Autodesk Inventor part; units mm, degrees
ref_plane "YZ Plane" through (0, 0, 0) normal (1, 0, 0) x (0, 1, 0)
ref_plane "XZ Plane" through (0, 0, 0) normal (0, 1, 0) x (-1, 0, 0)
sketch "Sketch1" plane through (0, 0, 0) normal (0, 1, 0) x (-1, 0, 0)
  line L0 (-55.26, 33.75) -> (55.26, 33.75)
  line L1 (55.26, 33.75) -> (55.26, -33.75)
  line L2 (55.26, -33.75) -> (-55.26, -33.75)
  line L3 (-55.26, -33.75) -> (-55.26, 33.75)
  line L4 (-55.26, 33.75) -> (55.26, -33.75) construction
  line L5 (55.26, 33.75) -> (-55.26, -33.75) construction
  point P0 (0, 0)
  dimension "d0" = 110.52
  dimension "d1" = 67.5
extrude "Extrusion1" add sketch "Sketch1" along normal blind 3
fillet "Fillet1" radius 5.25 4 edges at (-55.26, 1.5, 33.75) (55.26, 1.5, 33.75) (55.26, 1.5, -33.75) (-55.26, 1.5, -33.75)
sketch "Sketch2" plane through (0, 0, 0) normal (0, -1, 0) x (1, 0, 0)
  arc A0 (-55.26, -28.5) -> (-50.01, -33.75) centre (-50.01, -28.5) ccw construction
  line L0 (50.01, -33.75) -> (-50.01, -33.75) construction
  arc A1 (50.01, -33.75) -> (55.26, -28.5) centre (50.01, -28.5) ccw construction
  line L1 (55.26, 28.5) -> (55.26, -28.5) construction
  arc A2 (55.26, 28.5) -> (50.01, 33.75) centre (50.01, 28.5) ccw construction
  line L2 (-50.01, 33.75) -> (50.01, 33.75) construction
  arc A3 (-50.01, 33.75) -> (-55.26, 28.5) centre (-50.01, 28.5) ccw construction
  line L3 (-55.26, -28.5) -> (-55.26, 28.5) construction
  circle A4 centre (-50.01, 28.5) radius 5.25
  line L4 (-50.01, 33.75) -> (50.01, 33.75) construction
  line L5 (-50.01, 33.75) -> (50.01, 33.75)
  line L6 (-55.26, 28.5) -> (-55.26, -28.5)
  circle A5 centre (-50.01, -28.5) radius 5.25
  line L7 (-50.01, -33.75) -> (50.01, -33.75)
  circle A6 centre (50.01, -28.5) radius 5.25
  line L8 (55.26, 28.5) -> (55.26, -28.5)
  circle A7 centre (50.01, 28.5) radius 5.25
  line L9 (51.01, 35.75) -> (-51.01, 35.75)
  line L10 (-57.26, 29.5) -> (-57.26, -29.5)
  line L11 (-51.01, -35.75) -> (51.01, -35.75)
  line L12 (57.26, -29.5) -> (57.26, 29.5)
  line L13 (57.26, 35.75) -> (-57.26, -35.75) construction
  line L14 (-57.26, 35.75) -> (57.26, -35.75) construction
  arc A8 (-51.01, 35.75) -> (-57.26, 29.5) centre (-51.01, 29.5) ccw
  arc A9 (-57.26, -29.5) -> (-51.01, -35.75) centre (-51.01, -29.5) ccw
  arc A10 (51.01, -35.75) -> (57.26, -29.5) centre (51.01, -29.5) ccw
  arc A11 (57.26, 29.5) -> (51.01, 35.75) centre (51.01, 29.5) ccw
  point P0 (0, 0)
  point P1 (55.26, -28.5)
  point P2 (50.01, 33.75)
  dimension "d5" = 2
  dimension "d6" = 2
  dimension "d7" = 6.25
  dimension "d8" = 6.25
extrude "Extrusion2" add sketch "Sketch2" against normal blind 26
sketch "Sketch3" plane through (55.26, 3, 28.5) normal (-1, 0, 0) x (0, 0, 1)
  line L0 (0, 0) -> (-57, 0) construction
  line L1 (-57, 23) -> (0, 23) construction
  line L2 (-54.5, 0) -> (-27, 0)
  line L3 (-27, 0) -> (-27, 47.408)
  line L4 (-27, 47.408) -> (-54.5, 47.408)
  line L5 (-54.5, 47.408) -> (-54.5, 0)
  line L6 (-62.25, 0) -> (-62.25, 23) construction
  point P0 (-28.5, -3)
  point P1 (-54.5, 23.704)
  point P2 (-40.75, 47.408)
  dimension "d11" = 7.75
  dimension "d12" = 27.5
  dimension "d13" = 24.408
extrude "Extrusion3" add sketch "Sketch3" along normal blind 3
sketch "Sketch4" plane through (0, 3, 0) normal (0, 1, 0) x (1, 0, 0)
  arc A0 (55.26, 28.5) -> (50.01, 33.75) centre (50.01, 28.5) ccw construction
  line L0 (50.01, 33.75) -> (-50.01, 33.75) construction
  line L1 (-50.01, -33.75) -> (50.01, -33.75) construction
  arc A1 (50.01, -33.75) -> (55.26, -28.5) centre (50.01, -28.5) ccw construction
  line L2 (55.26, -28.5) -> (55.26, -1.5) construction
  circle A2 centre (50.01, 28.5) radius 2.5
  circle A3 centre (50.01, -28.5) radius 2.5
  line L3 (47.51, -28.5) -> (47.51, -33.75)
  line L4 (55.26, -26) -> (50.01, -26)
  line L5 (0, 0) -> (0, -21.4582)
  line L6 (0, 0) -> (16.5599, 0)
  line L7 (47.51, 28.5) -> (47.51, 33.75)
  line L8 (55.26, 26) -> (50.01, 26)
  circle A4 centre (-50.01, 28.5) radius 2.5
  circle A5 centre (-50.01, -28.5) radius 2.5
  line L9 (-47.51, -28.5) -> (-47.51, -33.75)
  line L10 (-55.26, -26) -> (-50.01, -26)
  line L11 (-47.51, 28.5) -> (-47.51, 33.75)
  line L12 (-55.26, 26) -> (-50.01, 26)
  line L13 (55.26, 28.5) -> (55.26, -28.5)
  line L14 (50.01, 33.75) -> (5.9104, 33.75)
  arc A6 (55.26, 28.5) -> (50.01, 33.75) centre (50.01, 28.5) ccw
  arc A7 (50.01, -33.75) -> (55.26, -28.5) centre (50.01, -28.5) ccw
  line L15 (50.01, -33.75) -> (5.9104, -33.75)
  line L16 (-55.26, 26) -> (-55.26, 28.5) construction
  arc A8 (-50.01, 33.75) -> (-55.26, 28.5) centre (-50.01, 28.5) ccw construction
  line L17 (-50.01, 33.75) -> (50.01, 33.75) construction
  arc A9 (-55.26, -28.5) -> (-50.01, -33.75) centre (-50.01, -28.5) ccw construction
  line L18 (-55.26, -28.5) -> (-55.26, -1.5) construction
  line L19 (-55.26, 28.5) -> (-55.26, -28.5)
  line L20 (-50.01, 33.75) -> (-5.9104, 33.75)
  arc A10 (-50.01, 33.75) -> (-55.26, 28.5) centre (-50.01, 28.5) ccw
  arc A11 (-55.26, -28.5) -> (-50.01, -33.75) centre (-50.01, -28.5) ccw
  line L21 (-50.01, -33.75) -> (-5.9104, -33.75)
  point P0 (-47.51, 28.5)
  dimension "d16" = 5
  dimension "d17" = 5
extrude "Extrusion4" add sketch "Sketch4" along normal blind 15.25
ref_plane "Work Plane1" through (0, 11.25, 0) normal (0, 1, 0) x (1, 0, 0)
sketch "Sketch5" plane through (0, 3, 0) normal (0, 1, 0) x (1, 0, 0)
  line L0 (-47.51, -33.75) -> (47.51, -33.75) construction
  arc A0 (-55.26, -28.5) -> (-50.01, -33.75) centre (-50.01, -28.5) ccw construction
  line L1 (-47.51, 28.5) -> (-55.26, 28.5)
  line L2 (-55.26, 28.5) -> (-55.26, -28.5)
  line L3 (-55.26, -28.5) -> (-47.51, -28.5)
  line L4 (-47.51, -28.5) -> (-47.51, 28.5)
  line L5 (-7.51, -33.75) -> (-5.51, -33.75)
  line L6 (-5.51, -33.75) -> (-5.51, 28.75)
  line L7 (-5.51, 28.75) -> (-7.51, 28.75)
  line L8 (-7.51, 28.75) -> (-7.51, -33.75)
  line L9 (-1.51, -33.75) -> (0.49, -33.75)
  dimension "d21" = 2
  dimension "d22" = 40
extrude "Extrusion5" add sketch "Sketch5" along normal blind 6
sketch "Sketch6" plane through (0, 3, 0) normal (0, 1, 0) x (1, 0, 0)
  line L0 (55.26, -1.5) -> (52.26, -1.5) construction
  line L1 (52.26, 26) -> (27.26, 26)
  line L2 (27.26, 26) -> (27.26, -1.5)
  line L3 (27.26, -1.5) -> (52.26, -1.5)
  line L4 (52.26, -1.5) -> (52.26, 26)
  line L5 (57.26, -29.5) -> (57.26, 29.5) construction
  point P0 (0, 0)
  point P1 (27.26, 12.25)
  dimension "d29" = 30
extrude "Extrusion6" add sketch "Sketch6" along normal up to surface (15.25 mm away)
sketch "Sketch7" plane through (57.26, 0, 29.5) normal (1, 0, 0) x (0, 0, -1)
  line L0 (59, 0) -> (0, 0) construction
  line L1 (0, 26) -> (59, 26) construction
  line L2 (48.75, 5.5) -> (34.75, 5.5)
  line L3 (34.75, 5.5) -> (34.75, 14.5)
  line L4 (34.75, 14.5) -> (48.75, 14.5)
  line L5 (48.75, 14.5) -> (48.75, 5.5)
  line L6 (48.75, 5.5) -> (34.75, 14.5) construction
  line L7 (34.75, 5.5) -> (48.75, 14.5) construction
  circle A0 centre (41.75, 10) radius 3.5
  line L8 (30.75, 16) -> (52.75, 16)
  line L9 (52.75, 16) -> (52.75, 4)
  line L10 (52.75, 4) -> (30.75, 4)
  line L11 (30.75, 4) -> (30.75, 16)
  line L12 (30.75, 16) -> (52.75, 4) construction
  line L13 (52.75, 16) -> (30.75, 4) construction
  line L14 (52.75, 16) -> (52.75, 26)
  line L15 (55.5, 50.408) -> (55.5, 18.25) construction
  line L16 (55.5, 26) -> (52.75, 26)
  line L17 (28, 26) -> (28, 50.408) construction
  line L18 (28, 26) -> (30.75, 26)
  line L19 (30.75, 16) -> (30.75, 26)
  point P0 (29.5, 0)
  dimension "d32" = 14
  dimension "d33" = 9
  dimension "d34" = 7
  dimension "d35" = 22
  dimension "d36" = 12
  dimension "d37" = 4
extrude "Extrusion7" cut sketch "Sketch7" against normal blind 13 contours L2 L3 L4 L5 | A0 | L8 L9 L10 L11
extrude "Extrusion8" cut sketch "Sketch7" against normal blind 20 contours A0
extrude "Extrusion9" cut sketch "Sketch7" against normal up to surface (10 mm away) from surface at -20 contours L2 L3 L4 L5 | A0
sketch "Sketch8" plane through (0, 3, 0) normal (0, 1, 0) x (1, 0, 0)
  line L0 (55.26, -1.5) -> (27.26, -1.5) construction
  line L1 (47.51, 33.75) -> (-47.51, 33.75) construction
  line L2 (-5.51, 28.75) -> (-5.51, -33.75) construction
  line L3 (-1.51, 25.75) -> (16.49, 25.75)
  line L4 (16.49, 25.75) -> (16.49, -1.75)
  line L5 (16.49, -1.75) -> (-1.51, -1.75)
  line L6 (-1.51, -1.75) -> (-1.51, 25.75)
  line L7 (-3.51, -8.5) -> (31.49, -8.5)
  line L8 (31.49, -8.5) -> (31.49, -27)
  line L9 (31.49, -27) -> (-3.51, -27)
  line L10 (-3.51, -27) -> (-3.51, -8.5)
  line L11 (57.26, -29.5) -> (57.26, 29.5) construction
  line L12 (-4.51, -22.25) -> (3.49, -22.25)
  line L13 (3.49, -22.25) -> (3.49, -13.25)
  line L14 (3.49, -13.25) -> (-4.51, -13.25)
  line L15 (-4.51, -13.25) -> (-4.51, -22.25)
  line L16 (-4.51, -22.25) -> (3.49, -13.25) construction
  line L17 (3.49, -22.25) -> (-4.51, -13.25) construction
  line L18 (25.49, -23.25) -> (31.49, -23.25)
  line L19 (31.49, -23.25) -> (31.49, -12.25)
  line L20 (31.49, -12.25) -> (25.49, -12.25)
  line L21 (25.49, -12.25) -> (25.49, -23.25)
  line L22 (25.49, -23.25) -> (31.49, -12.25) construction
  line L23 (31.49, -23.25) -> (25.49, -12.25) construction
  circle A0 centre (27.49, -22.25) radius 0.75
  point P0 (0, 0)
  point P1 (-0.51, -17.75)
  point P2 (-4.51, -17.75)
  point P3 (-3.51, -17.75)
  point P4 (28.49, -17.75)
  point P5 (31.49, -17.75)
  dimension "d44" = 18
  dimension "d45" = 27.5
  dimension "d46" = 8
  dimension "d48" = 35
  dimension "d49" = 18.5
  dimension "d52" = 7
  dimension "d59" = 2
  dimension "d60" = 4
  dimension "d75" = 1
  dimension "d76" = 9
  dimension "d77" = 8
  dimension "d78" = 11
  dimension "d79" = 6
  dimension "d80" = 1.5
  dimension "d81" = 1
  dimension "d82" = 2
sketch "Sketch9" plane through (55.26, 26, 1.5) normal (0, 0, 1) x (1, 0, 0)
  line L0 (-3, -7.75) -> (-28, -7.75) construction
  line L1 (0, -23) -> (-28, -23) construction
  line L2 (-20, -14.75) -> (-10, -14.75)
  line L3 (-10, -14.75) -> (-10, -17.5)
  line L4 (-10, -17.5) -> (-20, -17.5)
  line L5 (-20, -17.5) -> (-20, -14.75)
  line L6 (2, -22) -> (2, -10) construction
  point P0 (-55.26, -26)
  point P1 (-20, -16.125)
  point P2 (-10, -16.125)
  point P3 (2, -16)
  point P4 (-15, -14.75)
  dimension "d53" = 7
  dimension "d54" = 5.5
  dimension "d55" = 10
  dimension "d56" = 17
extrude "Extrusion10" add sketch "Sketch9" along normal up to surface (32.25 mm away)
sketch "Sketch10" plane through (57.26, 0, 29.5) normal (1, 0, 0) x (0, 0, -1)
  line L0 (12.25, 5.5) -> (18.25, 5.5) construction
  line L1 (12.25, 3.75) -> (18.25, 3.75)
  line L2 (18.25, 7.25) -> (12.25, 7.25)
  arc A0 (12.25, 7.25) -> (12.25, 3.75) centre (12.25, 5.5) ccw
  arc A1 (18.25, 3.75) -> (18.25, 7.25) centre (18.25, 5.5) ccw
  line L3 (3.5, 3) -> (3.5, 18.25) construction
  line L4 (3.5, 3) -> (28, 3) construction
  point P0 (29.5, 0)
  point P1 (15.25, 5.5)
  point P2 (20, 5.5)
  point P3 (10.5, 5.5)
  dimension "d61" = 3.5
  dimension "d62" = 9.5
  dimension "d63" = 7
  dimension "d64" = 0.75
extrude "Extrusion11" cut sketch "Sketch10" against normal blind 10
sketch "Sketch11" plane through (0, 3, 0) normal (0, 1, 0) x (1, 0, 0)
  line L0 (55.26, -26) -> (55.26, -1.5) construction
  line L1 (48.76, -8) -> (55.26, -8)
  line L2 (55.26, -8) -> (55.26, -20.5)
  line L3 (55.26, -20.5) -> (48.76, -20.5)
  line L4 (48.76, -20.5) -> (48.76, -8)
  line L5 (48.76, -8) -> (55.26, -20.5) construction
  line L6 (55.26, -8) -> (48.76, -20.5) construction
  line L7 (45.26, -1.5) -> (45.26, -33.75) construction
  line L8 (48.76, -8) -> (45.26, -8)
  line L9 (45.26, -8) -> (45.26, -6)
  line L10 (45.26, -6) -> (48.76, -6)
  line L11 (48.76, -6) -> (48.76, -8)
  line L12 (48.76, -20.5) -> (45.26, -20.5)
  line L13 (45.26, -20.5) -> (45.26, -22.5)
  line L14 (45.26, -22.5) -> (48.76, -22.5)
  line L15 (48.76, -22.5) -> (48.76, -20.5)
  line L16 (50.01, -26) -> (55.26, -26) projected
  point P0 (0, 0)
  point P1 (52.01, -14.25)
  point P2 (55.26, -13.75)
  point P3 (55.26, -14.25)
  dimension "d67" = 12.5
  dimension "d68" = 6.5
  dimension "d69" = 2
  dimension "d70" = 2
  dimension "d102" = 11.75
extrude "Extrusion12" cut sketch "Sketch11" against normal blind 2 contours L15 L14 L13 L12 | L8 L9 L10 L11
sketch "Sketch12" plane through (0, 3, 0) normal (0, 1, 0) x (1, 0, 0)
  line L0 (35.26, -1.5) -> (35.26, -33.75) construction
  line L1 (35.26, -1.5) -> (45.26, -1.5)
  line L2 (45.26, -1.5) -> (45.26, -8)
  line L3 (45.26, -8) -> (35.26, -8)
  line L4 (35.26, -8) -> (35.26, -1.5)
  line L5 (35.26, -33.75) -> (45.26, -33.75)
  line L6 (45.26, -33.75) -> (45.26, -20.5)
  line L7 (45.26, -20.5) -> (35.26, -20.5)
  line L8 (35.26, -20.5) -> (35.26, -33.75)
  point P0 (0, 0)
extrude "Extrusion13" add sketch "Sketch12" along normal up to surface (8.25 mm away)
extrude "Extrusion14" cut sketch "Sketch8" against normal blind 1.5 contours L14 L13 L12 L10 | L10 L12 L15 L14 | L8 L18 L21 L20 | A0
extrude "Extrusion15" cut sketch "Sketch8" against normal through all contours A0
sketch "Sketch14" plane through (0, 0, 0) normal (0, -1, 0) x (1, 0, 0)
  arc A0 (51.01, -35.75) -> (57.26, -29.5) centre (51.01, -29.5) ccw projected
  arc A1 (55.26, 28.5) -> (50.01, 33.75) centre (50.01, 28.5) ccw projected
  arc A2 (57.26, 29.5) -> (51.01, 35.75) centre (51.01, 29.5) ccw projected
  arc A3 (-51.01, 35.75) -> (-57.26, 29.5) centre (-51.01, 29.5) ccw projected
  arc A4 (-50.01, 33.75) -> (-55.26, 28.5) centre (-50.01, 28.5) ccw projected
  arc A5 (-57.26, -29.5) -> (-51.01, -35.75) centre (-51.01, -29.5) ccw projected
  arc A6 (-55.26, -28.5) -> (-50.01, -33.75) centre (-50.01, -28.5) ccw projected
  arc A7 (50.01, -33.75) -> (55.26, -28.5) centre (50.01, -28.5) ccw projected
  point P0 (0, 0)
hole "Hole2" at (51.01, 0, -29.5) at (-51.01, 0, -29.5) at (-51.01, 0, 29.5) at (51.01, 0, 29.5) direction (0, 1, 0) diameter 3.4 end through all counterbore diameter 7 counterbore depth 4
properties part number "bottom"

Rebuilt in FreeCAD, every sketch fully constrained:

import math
import FreeCAD as App
import Part
import Sketcher

V = App.Vector


def edges_at(feature, points):
    """Names of the edges that pass closest to the given points."""
    edges = feature.Shape.Edges
    near = lambda p: min(range(len(edges)), key=lambda i: edges[i].distToShape(Part.Vertex(*p))[0])
    return sorted({f"Edge{near(p) + 1}" for p in points})

doc = App.newDocument("Part")
body = doc.addObject("PartDesign::Body", "Body")

# Sketch on XZ plane
sketch1 = body.newObject("Sketcher::SketchObject", "Sketch")
sketch1.AttachmentSupport = (doc.getObject("XZ_Plane"), [""])
sketch1.MapMode = "FlatFace"
sketch1.addGeometry([
    Part.LineSegment(V(-55.26, 33.75, 0), V(55.26, 33.75, 0)),
    Part.LineSegment(V(55.26, 33.75, 0), V(55.26, -33.75, 0)),
    Part.LineSegment(V(55.26, -33.75, 0), V(-55.26, -33.75, 0)),
    Part.LineSegment(V(-55.26, -33.75, 0), V(-55.26, 33.75, 0)),
], False)
sketch1.addConstraint([
    Sketcher.Constraint("Coincident", 0, 2, 1, 1),
    Sketcher.Constraint("Coincident", 1, 2, 2, 1),
    Sketcher.Constraint("Coincident", 2, 2, 3, 1),
    Sketcher.Constraint("Coincident", 3, 2, 0, 1),
    Sketcher.Constraint("Horizontal", 0),
    Sketcher.Constraint("Vertical", 1),
    Sketcher.Constraint("Horizontal", 2),
    Sketcher.Constraint("Vertical", 3),
    Sketcher.Constraint("Symmetric", 0, 2, 2, 2, -1, 1),
    Sketcher.Constraint("DistanceY", 1, 2, 1, 1, 67.5),
    Sketcher.Constraint("DistanceX", 0, 1, 0, 2, 110.52),
])
pad1 = body.newObject("PartDesign::Pad", "Pad")
pad1.Profile = sketch1
pad1.Length = 3
pad1.Reversed = True
doc.recompute()

fillet = body.newObject("PartDesign::Fillet", "Fillet")
fillet.Base = (pad1, edges_at(pad1, [
    (-55.26, 1.5, 33.75),
    (55.26, 1.5, 33.75),
    (55.26, 1.5, -33.75),
    (-55.26, 1.5, -33.75),
]))
fillet.Radius = 5.25

# Sketch on XZ plane
sketch2 = body.newObject("Sketcher::SketchObject", "Sketch001")
sketch2.AttachmentSupport = (doc.getObject("XZ_Plane"), [""])
sketch2.MapMode = "FlatFace"
sketch2.addGeometry([
    Part.ArcOfCircle(Part.Circle(V(51.01, 29.5, 0), V(0, 0, 1), 6.25), math.radians(0), math.radians(90)),  # 0
    Part.LineSegment(V(51.01, 35.75, 0), V(-51.01, 35.75, 0)),  # 1
    Part.ArcOfCircle(Part.Circle(V(-51.01, 29.5, 0), V(0, 0, 1), 6.25), math.radians(90), math.radians(180)),  # 2
    Part.LineSegment(V(-57.26, 29.5, 0), V(-57.26, -29.5, 0)),  # 3
    Part.ArcOfCircle(Part.Circle(V(-51.01, -29.5, 0), V(0, 0, 1), 6.25), math.radians(180), math.radians(270)),  # 4
    Part.LineSegment(V(-51.01, -35.75, 0), V(51.01, -35.75, 0)),  # 5
    Part.ArcOfCircle(Part.Circle(V(51.01, -29.5, 0), V(0, 0, 1), 6.25), math.radians(-90), math.radians(0)),  # 6
    Part.LineSegment(V(57.26, -29.5, 0), V(57.26, 29.5, 0)),  # 7
    Part.ArcOfCircle(Part.Circle(V(-50.01, 28.5, 0), V(0, 0, 1), 5.25), math.radians(90), math.radians(180)),  # 8
    Part.LineSegment(V(-50.01, 33.75, 0), V(50.01, 33.75, 0)),  # 9
    Part.ArcOfCircle(Part.Circle(V(50.01, 28.5, 0), V(0, 0, 1), 5.25), math.radians(0), math.radians(90)),  # 10
    Part.LineSegment(V(55.26, 28.5, 0), V(55.26, -28.5, 0)),  # 11
    Part.ArcOfCircle(Part.Circle(V(50.01, -28.5, 0), V(0, 0, 1), 5.25), math.radians(-90), math.radians(0)),  # 12
    Part.LineSegment(V(50.01, -33.75, 0), V(-50.01, -33.75, 0)),  # 13
    Part.ArcOfCircle(Part.Circle(V(-50.01, -28.5, 0), V(0, 0, 1), 5.25), math.radians(180), math.radians(270)),  # 14
    Part.LineSegment(V(-55.26, -28.5, 0), V(-55.26, 28.5, 0)),  # 15
], False)
sketch2.addConstraint([
    Sketcher.Constraint("Tangent", 0, 2, 1, 1),
    Sketcher.Constraint("Tangent", 1, 2, 2, 1),
    Sketcher.Constraint("Tangent", 2, 2, 3, 1),
    Sketcher.Constraint("Tangent", 3, 2, 4, 1),
    Sketcher.Constraint("Tangent", 4, 2, 5, 1),
    Sketcher.Constraint("Tangent", 5, 2, 6, 1),
    Sketcher.Constraint("Tangent", 6, 2, 7, 1),
    Sketcher.Constraint("Tangent", 7, 2, 0, 1),
    Sketcher.Constraint("Tangent", 8, 1, 9, 1),
    Sketcher.Constraint("Tangent", 9, 2, 10, 2),
    Sketcher.Constraint("Tangent", 10, 1, 11, 1),
    Sketcher.Constraint("Tangent", 11, 2, 12, 2),
    Sketcher.Constraint("Tangent", 12, 1, 13, 1),
    Sketcher.Constraint("Tangent", 13, 2, 14, 2),
    Sketcher.Constraint("Tangent", 14, 1, 15, 1),
    Sketcher.Constraint("Tangent", 15, 2, 8, 2),
    Sketcher.Constraint("Horizontal", 1),
    Sketcher.Constraint("Vertical", 3),
    Sketcher.Constraint("Horizontal", 5),
    Sketcher.Constraint("Vertical", 7),
    Sketcher.Constraint("Horizontal", 9),
    Sketcher.Constraint("Vertical", 11),
    Sketcher.Constraint("Horizontal", 13),
    Sketcher.Constraint("Vertical", 15),
    Sketcher.Constraint("Equal", 0, 2),
    Sketcher.Constraint("Equal", 2, 4),
    Sketcher.Constraint("Equal", 4, 6),
    Sketcher.Constraint("Equal", 8, 10),
    Sketcher.Constraint("Equal", 10, 12),
    Sketcher.Constraint("Equal", 12, 14),
    Sketcher.Constraint("Symmetric", 0, 3, 4, 3, -1, 1),
    Sketcher.Constraint("Symmetric", 8, 3, 12, 3, -1, 1),
    Sketcher.Constraint("Radius", 0, 6.25),
    Sketcher.Constraint("DistanceY", 8, 1, 1, 2, 2.0),
    Sketcher.Constraint("DistanceX", 10, 1, 7, 2, 2.0),
    Sketcher.Constraint("DistanceY", 3, 2, 3, 1, 59.0),
    Sketcher.Constraint("DistanceY", 11, 2, 11, 1, 57.0),
    Sketcher.Constraint("DistanceX", 1, 2, 1, 1, 102.02),
])
pad2 = body.newObject("PartDesign::Pad", "Pad001")
pad2.Profile = sketch2
pad2.Length = 26
pad2.Reversed = True

# Sketch on YZ plane
sketch3 = body.newObject("Sketcher::SketchObject", "Sketch002")
sketch3.AttachmentSupport = (doc.getObject("YZ_Plane"), [""])
sketch3.MapMode = "FlatFace"
sketch3.AttachmentOffset = App.Placement(V(0, 0, 55.26), App.Rotation())
sketch3.addGeometry([
    Part.LineSegment(V(50.408, -26, 0), V(3, -26, 0)),
    Part.LineSegment(V(3, -26, 0), V(3, 1.5, 0)),
    Part.LineSegment(V(3, 1.5, 0), V(50.408, 1.5, 0)),
    Part.LineSegment(V(50.408, 1.5, 0), V(50.408, -26, 0)),
], False)
sketch3.addConstraint([
    Sketcher.Constraint("Coincident", 0, 2, 1, 1),
    Sketcher.Constraint("Coincident", 1, 2, 2, 1),
    Sketcher.Constraint("Coincident", 2, 2, 3, 1),
    Sketcher.Constraint("Coincident", 3, 2, 0, 1),
    Sketcher.Constraint("Horizontal", 0),
    Sketcher.Constraint("Vertical", 1),
    Sketcher.Constraint("Horizontal", 2),
    Sketcher.Constraint("Vertical", 3),
    Sketcher.Constraint("DistanceY", 1, 1, 1, 2, 27.5),
    Sketcher.Constraint("DistanceX", -1, 1, 0, 2, 3.0),
    Sketcher.Constraint("DistanceY", 0, 2, -1, 1, 26.0),
    Sketcher.Constraint("DistanceX", 0, 2, 0, 1, 47.408),
])
pad3 = body.newObject("PartDesign::Pad", "Pad002")
pad3.Profile = sketch3
pad3.Length = 3
pad3.Reversed = True

# Sketch on XZ plane
sketch4 = body.newObject("Sketcher::SketchObject", "Sketch003")
sketch4.AttachmentSupport = (doc.getObject("XZ_Plane"), [""])
sketch4.MapMode = "FlatFace"
sketch4.AttachmentOffset = App.Placement(V(0, 0, -3), App.Rotation())
sketch4.addGeometry([
    Part.ArcOfCircle(Part.Circle(V(50.01, -28.5, 0), V(0, 0, 1), 2.5), math.radians(90), math.radians(180)),  # 0
    Part.LineSegment(V(50.01, -26, 0), V(55.26, -26, 0)),  # 1
    Part.LineSegment(V(55.26, -26, 0), V(55.26, -28.5, 0)),  # 2
    Part.ArcOfCircle(Part.Circle(V(50.01, -28.5, 0), V(0, 0, 1), 5.25), math.radians(-90), math.radians(0)),  # 3
    Part.LineSegment(V(50.01, -33.75, 0), V(47.51, -33.75, 0)),  # 4
    Part.LineSegment(V(47.51, -33.75, 0), V(47.51, -28.5, 0)),  # 5
    Part.LineSegment(V(55.26, 28.5, 0), V(55.26, 26, 0)),  # 6
    Part.LineSegment(V(55.26, 26, 0), V(50.01, 26, 0)),  # 7
    Part.ArcOfCircle(Part.Circle(V(50.01, 28.5, 0), V(0, 0, 1), 2.5), math.radians(180), math.radians(270)),  # 8
    Part.LineSegment(V(47.51, 28.5, 0), V(47.51, 33.75, 0)),  # 9
    Part.LineSegment(V(47.51, 33.75, 0), V(50.01, 33.75, 0)),  # 10
    Part.ArcOfCircle(Part.Circle(V(50.01, 28.5, 0), V(0, 0, 1), 5.25), math.radians(0), math.radians(90)),  # 11
    Part.ArcOfCircle(Part.Circle(V(-50.01, -28.5, 0), V(0, 0, 1), 2.5), math.radians(0), math.radians(90)),  # 12
    Part.LineSegment(V(-47.51, -28.5, 0), V(-47.51, -33.75, 0)),  # 13
    Part.LineSegment(V(-47.51, -33.75, 0), V(-50.01, -33.75, 0)),  # 14
    Part.ArcOfCircle(Part.Circle(V(-50.01, -28.5, 0), V(0, 0, 1), 5.25), math.radians(180), math.radians(270)),  # 15
    Part.LineSegment(V(-55.26, -28.5, 0), V(-55.26, -26, 0)),  # 16
    Part.LineSegment(V(-55.26, -26, 0), V(-50.01, -26, 0)),  # 17
    Part.LineSegment(V(-50.01, 26, 0), V(-55.26, 26, 0)),  # 18
    Part.LineSegment(V(-55.26, 26, 0), V(-55.26, 28.5, 0)),  # 19
    Part.ArcOfCircle(Part.Circle(V(-50.01, 28.5, 0), V(0, 0, 1), 5.25), math.radians(90), math.radians(180)),  # 20
    Part.LineSegment(V(-50.01, 33.75, 0), V(-47.51, 33.75, 0)),  # 21
    Part.LineSegment(V(-47.51, 33.75, 0), V(-47.51, 28.5, 0)),  # 22
    Part.ArcOfCircle(Part.Circle(V(-50.01, 28.5, 0), V(0, 0, 1), 2.5), math.radians(-90), math.radians(0)),  # 23
], False)
sketch4.addConstraint([
    Sketcher.Constraint("Tangent", 0, 1, 1, 1),
    Sketcher.Constraint("Coincident", 1, 2, 2, 1),
    Sketcher.Constraint("Tangent", 2, 2, 3, 2),
    Sketcher.Constraint("Tangent", 3, 1, 4, 1),
    Sketcher.Constraint("Coincident", 4, 2, 5, 1),
    Sketcher.Constraint("Tangent", 5, 2, 0, 2),
    Sketcher.Constraint("Coincident", 6, 2, 7, 1),
    Sketcher.Constraint("Tangent", 7, 2, 8, 2),
    Sketcher.Constraint("Tangent", 8, 1, 9, 1),
    Sketcher.Constraint("Coincident", 9, 2, 10, 1),
    Sketcher.Constraint("Tangent", 10, 2, 11, 2),
    Sketcher.Constraint("Tangent", 11, 1, 6, 1),
    Sketcher.Constraint("Tangent", 12, 1, 13, 1),
    Sketcher.Constraint("Coincident", 13, 2, 14, 1),
    Sketcher.Constraint("Tangent", 14, 2, 15, 2),
    Sketcher.Constraint("Tangent", 15, 1, 16, 1),
    Sketcher.Constraint("Coincident", 16, 2, 17, 1),
    Sketcher.Constraint("Tangent", 17, 2, 12, 2),
    Sketcher.Constraint("Coincident", 18, 2, 19, 1),
    Sketcher.Constraint("Tangent", 19, 2, 20, 2),
    Sketcher.Constraint("Tangent", 20, 1, 21, 1),
    Sketcher.Constraint("Coincident", 21, 2, 22, 1),
    Sketcher.Constraint("Tangent", 22, 2, 23, 2),
    Sketcher.Constraint("Tangent", 23, 1, 18, 1),
    Sketcher.Constraint("Horizontal", 1),
    Sketcher.Constraint("Vertical", 2),
    Sketcher.Constraint("Horizontal", 4),
    Sketcher.Constraint("Vertical", 5),
    Sketcher.Constraint("Vertical", 6),
    Sketcher.Constraint("Horizontal", 7),
    Sketcher.Constraint("Vertical", 9),
    Sketcher.Constraint("Horizontal", 10),
    Sketcher.Constraint("Vertical", 13),
    Sketcher.Constraint("Horizontal", 14),
    Sketcher.Constraint("Vertical", 16),
    Sketcher.Constraint("Horizontal", 17),
    Sketcher.Constraint("Horizontal", 18),
    Sketcher.Constraint("Vertical", 19),
    Sketcher.Constraint("Horizontal", 21),
    Sketcher.Constraint("Vertical", 22),
    Sketcher.Constraint("Coincident", 3, 3, 0, 3),
    Sketcher.Constraint("Coincident", 11, 3, 8, 3),
    Sketcher.Constraint("Coincident", 15, 3, 12, 3),
    Sketcher.Constraint("Coincident", 23, 3, 20, 3),
    Sketcher.Constraint("Equal", 0, 8),
    Sketcher.Constraint("Equal", 3, 11),
    Sketcher.Constraint("Equal", 8, 12),
    Sketcher.Constraint("Equal", 11, 15),
    Sketcher.Constraint("Equal", 15, 20),
    Sketcher.Constraint("Equal", 12, 23),
    Sketcher.Constraint("Symmetric", 8, 3, 12, 3, -1, 1),
    Sketcher.Constraint("Symmetric", 0, 3, 20, 3, -1, 1),
    Sketcher.Constraint("Symmetric", 0, 3, 12, 3, -2),
    Sketcher.Constraint("Radius", 0, 2.5),
    Sketcher.Constraint("Radius", 3, 5.25),
    Sketcher.Constraint("DistanceY", 0, 1, -1, 1, 26.0),
    Sketcher.Constraint("DistanceX", -1, 1, 0, 3, 50.01),
])
pad4 = body.newObject("PartDesign::Pad", "Pad003")
pad4.Profile = sketch4
pad4.Length = 15.25
pad4.Reversed = True

# Sketch on XZ plane
sketch5 = body.newObject("Sketcher::SketchObject", "Sketch004")
sketch5.AttachmentSupport = (doc.getObject("XZ_Plane"), [""])
sketch5.MapMode = "FlatFace"
sketch5.AttachmentOffset = App.Placement(V(0, 0, -3), App.Rotation())
sketch5.addGeometry([
    Part.LineSegment(V(-47.51, 28.5, 0), V(-47.51, -28.5, 0)),  # 0
    Part.LineSegment(V(-47.51, -28.5, 0), V(-55.26, -28.5, 0)),  # 1
    Part.LineSegment(V(-55.26, -28.5, 0), V(-55.26, 28.5, 0)),  # 2
    Part.LineSegment(V(-55.26, 28.5, 0), V(-47.51, 28.5, 0)),  # 3
    Part.LineSegment(V(-7.51, -28.75, 0), V(-7.51, 33.75, 0)),  # 4
    Part.LineSegment(V(-7.51, 33.75, 0), V(-5.51, 33.75, 0)),  # 5
    Part.LineSegment(V(-5.51, 33.75, 0), V(-5.51, -28.75, 0)),  # 6
    Part.LineSegment(V(-5.51, -28.75, 0), V(-7.51, -28.75, 0)),  # 7
], False)
sketch5.addConstraint([
    Sketcher.Constraint("Coincident", 0, 2, 1, 1),
    Sketcher.Constraint("Coincident", 1, 2, 2, 1),
    Sketcher.Constraint("Coincident", 2, 2, 3, 1),
    Sketcher.Constraint("Coincident", 3, 2, 0, 1),
    Sketcher.Constraint("Coincident", 4, 2, 5, 1),
    Sketcher.Constraint("Coincident", 5, 2, 6, 1),
    Sketcher.Constraint("Coincident", 6, 2, 7, 1),
    Sketcher.Constraint("Coincident", 7, 2, 4, 1),
    Sketcher.Constraint("Vertical", 0),
    Sketcher.Constraint("Horizontal", 1),
    Sketcher.Constraint("Vertical", 2),
    Sketcher.Constraint("Horizontal", 3),
    Sketcher.Constraint("Vertical", 4),
    Sketcher.Constraint("Horizontal", 5),
    Sketcher.Constraint("Vertical", 6),
    Sketcher.Constraint("Horizontal", 7),
    Sketcher.Constraint("DistanceX", 5, 1, 5, 2, 2.0),
    Sketcher.Constraint("DistanceX", 3, 2, 4, 2, 40.0),
    Sketcher.Constraint("DistanceY", 0, 2, 0, 1, 57.0),
    Sketcher.Constraint("DistanceY", 4, 1, 4, 2, 62.5),
    Sketcher.Constraint("DistanceX", 1, 2, 1, 1, 7.75),
    Sketcher.Constraint("DistanceY", 0, 2, -1, 1, 28.5),
    Sketcher.Constraint("DistanceX", 0, 2, -1, 1, 47.51),
    Sketcher.Constraint("DistanceY", -1, 1, 4, 2, 33.75),
])
pad5 = body.newObject("PartDesign::Pad", "Pad004")
pad5.Profile = sketch5
pad5.Length = 6
pad5.Reversed = True

# Sketch on XZ plane
sketch6 = body.newObject("Sketcher::SketchObject", "Sketch005")
sketch6.AttachmentSupport = (doc.getObject("XZ_Plane"), [""])
sketch6.MapMode = "FlatFace"
sketch6.AttachmentOffset = App.Placement(V(0, 0, -3), App.Rotation())
sketch6.addGeometry([
    Part.LineSegment(V(52.26, 1.5, 0), V(52.26, -26, 0)),
    Part.LineSegment(V(52.26, -26, 0), V(27.26, -26, 0)),
    Part.LineSegment(V(27.26, -26, 0), V(27.26, 1.5, 0)),
    Part.LineSegment(V(27.26, 1.5, 0), V(52.26, 1.5, 0)),
], False)
sketch6.addConstraint([
    Sketcher.Constraint("Coincident", 0, 2, 1, 1),
    Sketcher.Constraint("Coincident", 1, 2, 2, 1),
    Sketcher.Constraint("Coincident", 2, 2, 3, 1),
    Sketcher.Constraint("Coincident", 3, 2, 0, 1),
    Sketcher.Constraint("Vertical", 0),
    Sketcher.Constraint("Horizontal", 1),
    Sketcher.Constraint("Vertical", 2),
    Sketcher.Constraint("Horizontal", 3),
    Sketcher.Constraint("DistanceX", 1, 2, 1, 1, 25.0),
    Sketcher.Constraint("DistanceY", 0, 2, 0, 1, 27.5),
    Sketcher.Constraint("DistanceY", 0, 2, -1, 1, 26.0),
    Sketcher.Constraint("DistanceX", -1, 1, 0, 2, 52.26),
])
pad6 = body.newObject("PartDesign::Pad", "Pad005")
pad6.Profile = sketch6
pad6.Length = 15.25
pad6.Reversed = True

# Sketch on YZ plane
sketch7 = body.newObject("Sketcher::SketchObject", "Sketch006")
sketch7.AttachmentSupport = (doc.getObject("YZ_Plane"), [""])
sketch7.MapMode = "FlatFace"
sketch7.AttachmentOffset = App.Placement(V(0, 0, 57.26), App.Rotation())
sketch7.addGeometry([
    Part.LineSegment(V(16, -23.25, 0), V(16, -1.25, 0)),
    Part.LineSegment(V(16, -1.25, 0), V(4, -1.25, 0)),
    Part.LineSegment(V(4, -1.25, 0), V(4, -23.25, 0)),
    Part.LineSegment(V(4, -23.25, 0), V(16, -23.25, 0)),
], False)
sketch7.addConstraint([
    Sketcher.Constraint("Coincident", 0, 2, 1, 1),
    Sketcher.Constraint("Coincident", 1, 2, 2, 1),
    Sketcher.Constraint("Coincident", 2, 2, 3, 1),
    Sketcher.Constraint("Coincident", 3, 2, 0, 1),
    Sketcher.Constraint("Vertical", 0),
    Sketcher.Constraint("Horizontal", 1),
    Sketcher.Constraint("Vertical", 2),
    Sketcher.Constraint("Horizontal", 3),
    Sketcher.Constraint("DistanceX", 1, 2, 1, 1, 12.0),
    Sketcher.Constraint("DistanceY", 0, 1, 0, 2, 22.0),
    Sketcher.Constraint("DistanceX", -1, 1, 1, 2, 4.0),
    Sketcher.Constraint("DistanceY", 0, 2, -1, 1, 1.25),
])
pocket1 = body.newObject("PartDesign::Pocket", "Pocket")
pocket1.Profile = sketch7
pocket1.Length = 13

# Sketch on YZ plane
sketch8 = body.newObject("Sketcher::SketchObject", "Sketch007")
sketch8.AttachmentSupport = (doc.getObject("YZ_Plane"), [""])
sketch8.MapMode = "FlatFace"
sketch8.AttachmentOffset = App.Placement(V(0, 0, 57.26), App.Rotation())
sketch8.addGeometry(Part.Circle(V(10, -12.25, 0), V(0, 0, 1), 3.5), False)
sketch8.addConstraint([
    Sketcher.Constraint("Diameter", 0, 7.0),
    Sketcher.Constraint("DistanceX", -1, 1, 0, 3, 10.0),
    Sketcher.Constraint("DistanceY", 0, 3, -1, 1, 12.25),
])
pocket2 = body.newObject("PartDesign::Pocket", "Pocket001")
pocket2.Profile = sketch8
pocket2.Length = 20

# Sketch on YZ plane
sketch9 = body.newObject("Sketcher::SketchObject", "Sketch008")
sketch9.AttachmentSupport = (doc.getObject("YZ_Plane"), [""])
sketch9.MapMode = "FlatFace"
sketch9.AttachmentOffset = App.Placement(V(0, 0, 37.26), App.Rotation())
sketch9.addGeometry([
    Part.LineSegment(V(5.5, -5.25, 0), V(5.5, -19.25, 0)),
    Part.LineSegment(V(5.5, -19.25, 0), V(14.5, -19.25, 0)),
    Part.LineSegment(V(14.5, -19.25, 0), V(14.5, -5.25, 0)),
    Part.LineSegment(V(14.5, -5.25, 0), V(5.5, -5.25, 0)),
], False)
sketch9.addConstraint([
    Sketcher.Constraint("Coincident", 0, 2, 1, 1),
    Sketcher.Constraint("Coincident", 1, 2, 2, 1),
    Sketcher.Constraint("Coincident", 2, 2, 3, 1),
    Sketcher.Constraint("Coincident", 3, 2, 0, 1),
    Sketcher.Constraint("Vertical", 0),
    Sketcher.Constraint("Horizontal", 1),
    Sketcher.Constraint("Vertical", 2),
    Sketcher.Constraint("Horizontal", 3),
    Sketcher.Constraint("DistanceX", 1, 1, 1, 2, 9.0),
    Sketcher.Constraint("DistanceY", 0, 2, 0, 1, 14.0),
    Sketcher.Constraint("DistanceX", -1, 1, 0, 2, 5.5),
    Sketcher.Constraint("DistanceY", 0, 2, -1, 1, 19.25),
])
pocket3 = body.newObject("PartDesign::Pocket", "Pocket002")
pocket3.Profile = sketch9
pocket3.Length = 10

# Sketch on XY plane
sketch10 = body.newObject("Sketcher::SketchObject", "Sketch009")
sketch10.AttachmentSupport = (doc.getObject("XY_Plane"), [""])
sketch10.MapMode = "FlatFace"
sketch10.AttachmentOffset = App.Placement(V(0, 0, 1.5), App.Rotation())
sketch10.addGeometry([
    Part.LineSegment(V(45.26, 11.25, 0), V(35.26, 11.25, 0)),
    Part.LineSegment(V(35.26, 11.25, 0), V(35.26, 8.5, 0)),
    Part.LineSegment(V(35.26, 8.5, 0), V(45.26, 8.5, 0)),
    Part.LineSegment(V(45.26, 8.5, 0), V(45.26, 11.25, 0)),
], False)
sketch10.addConstraint([
    Sketcher.Constraint("Coincident", 0, 2, 1, 1),
    Sketcher.Constraint("Coincident", 1, 2, 2, 1),
    Sketcher.Constraint("Coincident", 2, 2, 3, 1),
    Sketcher.Constraint("Coincident", 3, 2, 0, 1),
    Sketcher.Constraint("Horizontal", 0),
    Sketcher.Constraint("Vertical", 1),
    Sketcher.Constraint("Horizontal", 2),
    Sketcher.Constraint("Vertical", 3),
    Sketcher.Constraint("DistanceX", 0, 2, 0, 1, 10.0),
    Sketcher.Constraint("DistanceY", 1, 2, 1, 1, 2.75),
    Sketcher.Constraint("DistanceY", -1, 1, 1, 2, 8.5),
    Sketcher.Constraint("DistanceX", -1, 1, 0, 2, 35.26),
])
pad7 = body.newObject("PartDesign::Pad", "Pad006")
pad7.Profile = sketch10
pad7.Length = 32.25

# Sketch on YZ plane
sketch11 = body.newObject("Sketcher::SketchObject", "Sketch010")
sketch11.AttachmentSupport = (doc.getObject("YZ_Plane"), [""])
sketch11.MapMode = "FlatFace"
sketch11.AttachmentOffset = App.Placement(V(0, 0, 57.26), App.Rotation())
sketch11.addGeometry([
    Part.ArcOfCircle(Part.Circle(V(5.5, 17.25, 0), V(0, 0, 1), 1.75), math.radians(0), math.radians(180)),
    Part.LineSegment(V(3.75, 17.25, 0), V(3.75, 11.25, 0)),
    Part.ArcOfCircle(Part.Circle(V(5.5, 11.25, 0), V(0, 0, 1), 1.75), math.radians(180), math.radians(360)),
    Part.LineSegment(V(7.25, 11.25, 0), V(7.25, 17.25, 0)),
], False)
sketch11.addConstraint([
    Sketcher.Constraint("Tangent", 0, 2, 1, 1),
    Sketcher.Constraint("Tangent", 1, 2, 2, 1),
    Sketcher.Constraint("Tangent", 2, 2, 3, 1),
    Sketcher.Constraint("Tangent", 3, 2, 0, 1),
    Sketcher.Constraint("Vertical", 1),
    Sketcher.Constraint("Vertical", 3),
    Sketcher.Constraint("Radius", 0, 1.75),
    Sketcher.Constraint("DistanceY", 1, 2, 1, 1, 6.0),
    Sketcher.Constraint("DistanceX", -1, 1, 0, 3, 5.5),
    Sketcher.Constraint("DistanceY", -1, 1, 0, 3, 17.25),
])
pocket4 = body.newObject("PartDesign::Pocket", "Pocket003")
pocket4.Profile = sketch11
pocket4.Length = 10

# Sketch on XZ plane
sketch12 = body.newObject("Sketcher::SketchObject", "Sketch011")
sketch12.AttachmentSupport = (doc.getObject("XZ_Plane"), [""])
sketch12.MapMode = "FlatFace"
sketch12.AttachmentOffset = App.Placement(V(0, 0, -3), App.Rotation())
sketch12.addGeometry([
    Part.LineSegment(V(48.76, 22.5, 0), V(48.76, 20.5, 0)),  # 0
    Part.LineSegment(V(48.76, 20.5, 0), V(45.26, 20.5, 0)),  # 1
    Part.LineSegment(V(45.26, 20.5, 0), V(45.26, 22.5, 0)),  # 2
    Part.LineSegment(V(45.26, 22.5, 0), V(48.76, 22.5, 0)),  # 3
    Part.LineSegment(V(45.26, 8, 0), V(48.76, 8, 0)),  # 4
    Part.LineSegment(V(48.76, 8, 0), V(48.76, 6, 0)),  # 5
    Part.LineSegment(V(48.76, 6, 0), V(45.26, 6, 0)),  # 6
    Part.LineSegment(V(45.26, 6, 0), V(45.26, 8, 0)),  # 7
], False)
sketch12.addConstraint([
    Sketcher.Constraint("Coincident", 0, 2, 1, 1),
    Sketcher.Constraint("Coincident", 1, 2, 2, 1),
    Sketcher.Constraint("Coincident", 2, 2, 3, 1),
    Sketcher.Constraint("Coincident", 3, 2, 0, 1),
    Sketcher.Constraint("Coincident", 4, 2, 5, 1),
    Sketcher.Constraint("Coincident", 5, 2, 6, 1),
    Sketcher.Constraint("Coincident", 6, 2, 7, 1),
    Sketcher.Constraint("Coincident", 7, 2, 4, 1),
    Sketcher.Constraint("Vertical", 0),
    Sketcher.Constraint("Horizontal", 1),
    Sketcher.Constraint("Vertical", 2),
    Sketcher.Constraint("Horizontal", 3),
    Sketcher.Constraint("Horizontal", 4),
    Sketcher.Constraint("Vertical", 5),
    Sketcher.Constraint("Horizontal", 6),
    Sketcher.Constraint("Vertical", 7),
    Sketcher.Constraint("Vertical", 3, 2, 4, 2),
    Sketcher.Constraint("Vertical", 2, 2, 6, 2),
    Sketcher.Constraint("Equal", 2, 5),
    Sketcher.Constraint("DistanceY", 0, 2, 0, 1, 2.0),
    Sketcher.Constraint("DistanceY", 4, 2, 0, 2, 12.5),
    Sketcher.Constraint("DistanceX", 1, 2, 1, 1, 3.5),
    Sketcher.Constraint("DistanceY", -1, 1, 4, 2, 8.0),
    Sketcher.Constraint("DistanceX", -1, 1, 0, 2, 48.76),
])
pocket5 = body.newObject("PartDesign::Pocket", "Pocket004")
pocket5.Profile = sketch12
pocket5.Length = 2
pocket5.Reversed = True

# Sketch on XZ plane
sketch13 = body.newObject("Sketcher::SketchObject", "Sketch012")
sketch13.AttachmentSupport = (doc.getObject("XZ_Plane"), [""])
sketch13.MapMode = "FlatFace"
sketch13.AttachmentOffset = App.Placement(V(0, 0, -3), App.Rotation())
sketch13.addGeometry([
    Part.LineSegment(V(45.26, 1.5, 0), V(35.26, 1.5, 0)),  # 0
    Part.LineSegment(V(35.26, 1.5, 0), V(35.26, 8, 0)),  # 1
    Part.LineSegment(V(35.26, 8, 0), V(45.26, 8, 0)),  # 2
    Part.LineSegment(V(45.26, 8, 0), V(45.26, 1.5, 0)),  # 3
    Part.LineSegment(V(35.26, 20.5, 0), V(35.26, 33.75, 0)),  # 4
    Part.LineSegment(V(35.26, 33.75, 0), V(45.26, 33.75, 0)),  # 5
    Part.LineSegment(V(45.26, 33.75, 0), V(45.26, 20.5, 0)),  # 6
    Part.LineSegment(V(45.26, 20.5, 0), V(35.26, 20.5, 0)),  # 7
], False)
sketch13.addConstraint([
    Sketcher.Constraint("Coincident", 0, 2, 1, 1),
    Sketcher.Constraint("Coincident", 1, 2, 2, 1),
    Sketcher.Constraint("Coincident", 2, 2, 3, 1),
    Sketcher.Constraint("Coincident", 3, 2, 0, 1),
    Sketcher.Constraint("Coincident", 4, 2, 5, 1),
    Sketcher.Constraint("Coincident", 5, 2, 6, 1),
    Sketcher.Constraint("Coincident", 6, 2, 7, 1),
    Sketcher.Constraint("Coincident", 7, 2, 4, 1),
    Sketcher.Constraint("Horizontal", 0),
    Sketcher.Constraint("Vertical", 1),
    Sketcher.Constraint("Horizontal", 2),
    Sketcher.Constraint("Vertical", 3),
    Sketcher.Constraint("Vertical", 4),
    Sketcher.Constraint("Horizontal", 5),
    Sketcher.Constraint("Vertical", 6),
    Sketcher.Constraint("Horizontal", 7),
    Sketcher.Constraint("Vertical", 1, 2, 4, 2),
    Sketcher.Constraint("Vertical", 3, 2, 5, 2),
    Sketcher.Constraint("DistanceX", 0, 2, 0, 1, 10.0),
    Sketcher.Constraint("DistanceY", 1, 1, 1, 2, 6.5),
    Sketcher.Constraint("DistanceY", -1, 1, 1, 2, 8.0),
    Sketcher.Constraint("DistanceY", 3, 2, 6, 2, 19.0),
    Sketcher.Constraint("DistanceY", 4, 1, 4, 2, 13.25),
    Sketcher.Constraint("DistanceX", -1, 1, 0, 2, 35.26),
])
pad8 = body.newObject("PartDesign::Pad", "Pad007")
pad8.Profile = sketch13
pad8.Length = 8.25
pad8.Reversed = True

# Sketch on XZ plane
sketch14 = body.newObject("Sketcher::SketchObject", "Sketch013")
sketch14.AttachmentSupport = (doc.getObject("XZ_Plane"), [""])
sketch14.MapMode = "FlatFace"
sketch14.AttachmentOffset = App.Placement(V(0, 0, -3), App.Rotation())
sketch14.addGeometry([
    Part.LineSegment(V(3.49, 13.25, 0), V(-4.51, 13.25, 0)),  # 0
    Part.LineSegment(V(-4.51, 13.25, 0), V(-4.51, 22.25, 0)),  # 1
    Part.LineSegment(V(-4.51, 22.25, 0), V(3.49, 22.25, 0)),  # 2
    Part.LineSegment(V(3.49, 22.25, 0), V(3.49, 13.25, 0)),  # 3
    Part.LineSegment(V(31.49, 23.25, 0), V(31.49, 12.25, 0)),  # 4
    Part.LineSegment(V(31.49, 12.25, 0), V(25.49, 12.25, 0)),  # 5
    Part.LineSegment(V(25.49, 12.25, 0), V(25.49, 23.25, 0)),  # 6
    Part.LineSegment(V(25.49, 23.25, 0), V(31.49, 23.25, 0)),  # 7
], False)
sketch14.addConstraint([
    Sketcher.Constraint("Coincident", 0, 2, 1, 1),
    Sketcher.Constraint("Coincident", 1, 2, 2, 1),
    Sketcher.Constraint("Coincident", 2, 2, 3, 1),
    Sketcher.Constraint("Coincident", 3, 2, 0, 1),
    Sketcher.Constraint("Coincident", 4, 2, 5, 1),
    Sketcher.Constraint("Coincident", 5, 2, 6, 1),
    Sketcher.Constraint("Coincident", 6, 2, 7, 1),
    Sketcher.Constraint("Coincident", 7, 2, 4, 1),
    Sketcher.Constraint("Horizontal", 0),
    Sketcher.Constraint("Vertical", 1),
    Sketcher.Constraint("Horizontal", 2),
    Sketcher.Constraint("Vertical", 3),
    Sketcher.Constraint("Vertical", 4),
    Sketcher.Constraint("Horizontal", 5),
    Sketcher.Constraint("Vertical", 6),
    Sketcher.Constraint("Horizontal", 7),
    Sketcher.Constraint("DistanceX", 0, 2, 0, 1, 8.0),
    Sketcher.Constraint("DistanceX", 5, 2, 5, 1, 6.0),
    Sketcher.Constraint("DistanceY", 1, 1, 1, 2, 9.0),
    Sketcher.Constraint("DistanceY", 4, 2, 4, 1, 11.0),
    Sketcher.Constraint("DistanceY", 4, 2, 3, 2, 1.0),
    Sketcher.Constraint("DistanceX", 3, 2, 4, 2, 28.0),
    Sketcher.Constraint("DistanceX", 0, 2, -1, 1, 4.51),
    Sketcher.Constraint("DistanceY", -1, 1, 0, 2, 13.25),
])
pocket6 = body.newObject("PartDesign::Pocket", "Pocket005")
pocket6.Profile = sketch14
pocket6.Length = 1.5
pocket6.Reversed = True

# Sketch on XZ plane
sketch15 = body.newObject("Sketcher::SketchObject", "Sketch014")
sketch15.AttachmentSupport = (doc.getObject("XZ_Plane"), [""])
sketch15.MapMode = "FlatFace"
sketch15.AttachmentOffset = App.Placement(V(0, 0, -3), App.Rotation())
sketch15.addGeometry(Part.Circle(V(27.49, 22.25, 0), V(0, 0, 1), 0.75), False)
sketch15.addConstraint([
    Sketcher.Constraint("Diameter", 0, 1.5),
    Sketcher.Constraint("DistanceX", -1, 1, 0, 3, 27.49),
    Sketcher.Constraint("DistanceY", -1, 1, 0, 3, 22.25),
])
pocket7 = body.newObject("PartDesign::Pocket", "Pocket006")
pocket7.Profile = sketch15
pocket7.Type = "ThroughAll"
pocket7.Reversed = True

# Sketch on XZ plane
sketch16 = body.newObject("Sketcher::SketchObject", "Sketch015")
sketch16.AttachmentSupport = (doc.getObject("XZ_Plane"), [""])
sketch16.MapMode = "FlatFace"
sketch16.addGeometry([
    Part.Circle(V(51.01, -29.5, 0), V(0, 0, 1), 1.7),
    Part.Circle(V(-51.01, -29.5, 0), V(0, 0, 1), 1.7),
    Part.Circle(V(-51.01, 29.5, 0), V(0, 0, 1), 1.7),
    Part.Circle(V(51.01, 29.5, 0), V(0, 0, 1), 1.7),
], False)
sketch16.addConstraint([
    Sketcher.Constraint("Equal", 0, 1),
    Sketcher.Constraint("Equal", 1, 2),
    Sketcher.Constraint("Equal", 2, 3),
    Sketcher.Constraint("Symmetric", 0, 3, 2, 3, -1, 1),
    Sketcher.Constraint("Symmetric", 1, 3, 3, 3, -1, 1),
    Sketcher.Constraint("Symmetric", 0, 3, 1, 3, -2),
    Sketcher.Constraint("Diameter", 0, 3.4),
    Sketcher.Constraint("DistanceY", 1, 3, 2, 3, 59.0),
    Sketcher.Constraint("DistanceX", -1, 1, 0, 3, 51.01),
])
doc.recompute()
hole = body.newObject("PartDesign::Hole", "Hole")
hole.Profile = sketch16
hole.ThreadType = "None"
hole.Diameter = 3.4
hole.DepthType = "ThroughAll"
hole.HoleCutType = "Counterbore"
hole.HoleCutDiameter = 7
hole.HoleCutDepth = 4

doc.recompute()
